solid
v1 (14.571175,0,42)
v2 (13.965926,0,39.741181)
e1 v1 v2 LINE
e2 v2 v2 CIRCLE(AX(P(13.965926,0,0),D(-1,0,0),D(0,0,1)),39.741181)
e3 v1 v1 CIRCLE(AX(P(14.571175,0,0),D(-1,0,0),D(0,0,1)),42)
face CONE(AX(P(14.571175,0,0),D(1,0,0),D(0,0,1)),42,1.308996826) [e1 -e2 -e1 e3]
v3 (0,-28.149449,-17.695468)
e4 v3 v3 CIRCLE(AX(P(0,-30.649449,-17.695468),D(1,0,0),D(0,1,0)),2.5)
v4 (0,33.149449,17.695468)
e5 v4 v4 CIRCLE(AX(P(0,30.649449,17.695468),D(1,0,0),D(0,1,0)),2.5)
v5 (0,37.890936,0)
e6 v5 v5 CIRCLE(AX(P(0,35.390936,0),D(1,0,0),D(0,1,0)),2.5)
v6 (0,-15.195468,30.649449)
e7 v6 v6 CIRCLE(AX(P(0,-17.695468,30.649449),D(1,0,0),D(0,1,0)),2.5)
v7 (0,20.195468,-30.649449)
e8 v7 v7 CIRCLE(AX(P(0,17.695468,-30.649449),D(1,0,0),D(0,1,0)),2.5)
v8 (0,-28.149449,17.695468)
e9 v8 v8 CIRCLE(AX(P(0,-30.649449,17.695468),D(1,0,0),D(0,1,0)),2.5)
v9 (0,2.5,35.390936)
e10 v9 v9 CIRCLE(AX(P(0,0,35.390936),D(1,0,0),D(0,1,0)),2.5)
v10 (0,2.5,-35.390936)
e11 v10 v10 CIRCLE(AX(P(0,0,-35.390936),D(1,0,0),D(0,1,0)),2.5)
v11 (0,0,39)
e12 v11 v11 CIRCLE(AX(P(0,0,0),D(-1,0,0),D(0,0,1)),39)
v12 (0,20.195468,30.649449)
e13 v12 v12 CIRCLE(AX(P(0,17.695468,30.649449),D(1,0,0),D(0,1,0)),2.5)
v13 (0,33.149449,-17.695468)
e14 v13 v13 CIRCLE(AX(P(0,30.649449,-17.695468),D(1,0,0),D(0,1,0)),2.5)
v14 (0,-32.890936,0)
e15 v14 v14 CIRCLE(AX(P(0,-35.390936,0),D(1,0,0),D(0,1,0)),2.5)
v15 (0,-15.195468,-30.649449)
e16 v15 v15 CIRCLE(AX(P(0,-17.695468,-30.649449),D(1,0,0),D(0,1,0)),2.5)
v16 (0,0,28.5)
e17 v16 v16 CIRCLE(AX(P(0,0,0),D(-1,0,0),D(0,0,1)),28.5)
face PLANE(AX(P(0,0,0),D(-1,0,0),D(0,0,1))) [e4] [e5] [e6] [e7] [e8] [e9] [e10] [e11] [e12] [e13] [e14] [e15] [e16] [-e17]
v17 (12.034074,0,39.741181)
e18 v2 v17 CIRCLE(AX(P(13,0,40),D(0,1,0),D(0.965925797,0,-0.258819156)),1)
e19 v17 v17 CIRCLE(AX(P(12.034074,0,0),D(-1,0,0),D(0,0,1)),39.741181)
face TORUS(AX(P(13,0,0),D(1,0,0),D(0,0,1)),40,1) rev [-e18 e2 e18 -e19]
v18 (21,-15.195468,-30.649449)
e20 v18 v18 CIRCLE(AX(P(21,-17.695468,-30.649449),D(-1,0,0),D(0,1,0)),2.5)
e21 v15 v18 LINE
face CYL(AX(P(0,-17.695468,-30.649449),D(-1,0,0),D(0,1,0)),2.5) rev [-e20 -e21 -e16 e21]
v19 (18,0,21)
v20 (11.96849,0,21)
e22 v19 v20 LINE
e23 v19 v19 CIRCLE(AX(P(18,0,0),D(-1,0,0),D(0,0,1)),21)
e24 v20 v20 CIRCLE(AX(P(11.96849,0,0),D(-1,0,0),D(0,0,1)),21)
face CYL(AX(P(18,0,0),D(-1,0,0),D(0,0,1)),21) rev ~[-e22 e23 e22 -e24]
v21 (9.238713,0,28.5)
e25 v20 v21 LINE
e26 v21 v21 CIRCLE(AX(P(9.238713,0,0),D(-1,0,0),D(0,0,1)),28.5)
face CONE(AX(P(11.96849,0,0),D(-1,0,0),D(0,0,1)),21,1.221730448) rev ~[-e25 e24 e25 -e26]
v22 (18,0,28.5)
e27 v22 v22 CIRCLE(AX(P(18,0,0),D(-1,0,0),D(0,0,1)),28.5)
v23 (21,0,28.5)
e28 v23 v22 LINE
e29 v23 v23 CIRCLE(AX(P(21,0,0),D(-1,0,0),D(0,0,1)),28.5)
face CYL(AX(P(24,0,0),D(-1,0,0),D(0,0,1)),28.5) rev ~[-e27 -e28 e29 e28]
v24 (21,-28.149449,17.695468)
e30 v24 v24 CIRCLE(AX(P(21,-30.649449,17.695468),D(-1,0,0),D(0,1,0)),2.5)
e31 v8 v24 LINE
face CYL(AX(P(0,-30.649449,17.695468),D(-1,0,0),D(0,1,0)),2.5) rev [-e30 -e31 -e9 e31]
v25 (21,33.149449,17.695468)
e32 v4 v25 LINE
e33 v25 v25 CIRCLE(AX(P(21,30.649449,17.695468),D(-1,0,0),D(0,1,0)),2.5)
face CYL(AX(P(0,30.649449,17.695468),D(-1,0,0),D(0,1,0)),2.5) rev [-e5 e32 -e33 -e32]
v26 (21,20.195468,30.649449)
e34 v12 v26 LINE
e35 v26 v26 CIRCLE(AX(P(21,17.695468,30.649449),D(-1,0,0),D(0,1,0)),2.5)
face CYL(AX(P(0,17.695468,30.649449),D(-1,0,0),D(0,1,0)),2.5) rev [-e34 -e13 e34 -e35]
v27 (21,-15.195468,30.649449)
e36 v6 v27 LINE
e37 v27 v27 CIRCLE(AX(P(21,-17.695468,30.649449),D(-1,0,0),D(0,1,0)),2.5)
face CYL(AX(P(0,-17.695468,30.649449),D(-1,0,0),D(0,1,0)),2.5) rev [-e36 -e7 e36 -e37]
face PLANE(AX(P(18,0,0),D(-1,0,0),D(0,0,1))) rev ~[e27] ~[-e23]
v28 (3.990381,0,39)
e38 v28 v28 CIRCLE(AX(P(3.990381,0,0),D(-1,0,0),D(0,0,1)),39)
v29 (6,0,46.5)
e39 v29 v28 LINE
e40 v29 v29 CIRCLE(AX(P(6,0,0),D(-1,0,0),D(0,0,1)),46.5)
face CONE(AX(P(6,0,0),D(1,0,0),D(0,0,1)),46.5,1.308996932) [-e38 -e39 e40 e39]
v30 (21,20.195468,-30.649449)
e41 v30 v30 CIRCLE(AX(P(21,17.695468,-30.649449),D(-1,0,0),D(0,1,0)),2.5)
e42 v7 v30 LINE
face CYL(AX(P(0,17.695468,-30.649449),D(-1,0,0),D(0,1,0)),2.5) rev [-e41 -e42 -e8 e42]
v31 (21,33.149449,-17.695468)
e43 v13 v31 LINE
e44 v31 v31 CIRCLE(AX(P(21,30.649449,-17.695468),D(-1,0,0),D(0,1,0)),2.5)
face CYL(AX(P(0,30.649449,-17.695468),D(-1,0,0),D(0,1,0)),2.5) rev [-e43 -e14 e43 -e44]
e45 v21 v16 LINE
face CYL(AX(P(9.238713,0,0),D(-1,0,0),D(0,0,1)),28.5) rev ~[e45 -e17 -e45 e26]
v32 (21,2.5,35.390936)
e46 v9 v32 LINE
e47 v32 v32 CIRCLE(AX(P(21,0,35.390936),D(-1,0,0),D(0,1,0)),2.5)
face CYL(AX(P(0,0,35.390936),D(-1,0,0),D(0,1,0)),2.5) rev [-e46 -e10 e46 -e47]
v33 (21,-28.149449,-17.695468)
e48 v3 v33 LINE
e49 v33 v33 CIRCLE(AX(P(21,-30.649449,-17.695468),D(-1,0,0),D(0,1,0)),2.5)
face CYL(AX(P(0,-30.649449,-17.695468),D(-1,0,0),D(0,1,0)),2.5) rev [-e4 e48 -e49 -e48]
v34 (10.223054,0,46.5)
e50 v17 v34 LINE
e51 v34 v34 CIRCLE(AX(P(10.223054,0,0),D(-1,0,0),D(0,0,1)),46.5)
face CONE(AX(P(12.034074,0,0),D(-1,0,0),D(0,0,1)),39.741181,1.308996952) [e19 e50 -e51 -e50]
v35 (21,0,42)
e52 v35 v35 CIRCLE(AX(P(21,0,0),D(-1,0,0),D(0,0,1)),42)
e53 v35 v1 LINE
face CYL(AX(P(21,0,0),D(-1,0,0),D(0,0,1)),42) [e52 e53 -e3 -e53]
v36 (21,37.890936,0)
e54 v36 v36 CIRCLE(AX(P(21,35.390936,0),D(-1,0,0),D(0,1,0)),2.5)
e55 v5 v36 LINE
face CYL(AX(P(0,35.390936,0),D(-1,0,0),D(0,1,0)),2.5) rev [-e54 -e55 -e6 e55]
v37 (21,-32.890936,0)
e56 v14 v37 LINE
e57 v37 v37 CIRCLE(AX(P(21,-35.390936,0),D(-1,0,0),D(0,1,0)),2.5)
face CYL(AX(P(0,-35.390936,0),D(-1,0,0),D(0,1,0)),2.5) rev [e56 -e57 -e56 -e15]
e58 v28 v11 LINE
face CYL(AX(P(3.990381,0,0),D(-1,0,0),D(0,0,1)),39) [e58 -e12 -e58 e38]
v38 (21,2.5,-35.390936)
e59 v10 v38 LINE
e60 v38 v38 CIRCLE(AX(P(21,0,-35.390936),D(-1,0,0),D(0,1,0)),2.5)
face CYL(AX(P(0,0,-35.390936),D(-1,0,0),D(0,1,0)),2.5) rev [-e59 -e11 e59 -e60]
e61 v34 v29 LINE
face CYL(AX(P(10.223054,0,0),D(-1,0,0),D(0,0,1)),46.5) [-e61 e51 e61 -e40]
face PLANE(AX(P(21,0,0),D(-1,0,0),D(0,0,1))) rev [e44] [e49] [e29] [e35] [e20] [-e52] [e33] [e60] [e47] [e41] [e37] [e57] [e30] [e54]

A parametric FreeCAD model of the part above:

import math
import FreeCAD as App
import Part
import Sketcher
from FreeCAD import Vector
Q = App.Units.Quantity


def add_polygon(sketch, points):
    """Adds a closed chain of lines whose ends are joined by coincident constraints."""
    first, n = sketch.GeometryCount, len(points)
    for a, b in zip(points, points[1:] + points[:1]):
        sketch.addGeometry(Part.LineSegment(App.Vector(*a, 0), App.Vector(*b, 0)), False)
    for i in range(n):
        sketch.addConstraint(Sketcher.Constraint("Coincident", first + i, 2, first + (i + 1) % n, 1))

doc = App.newDocument("Part")
body = doc.addObject("PartDesign::Body", "Body")

# Sketch on XZ plane
sketch1 = doc.addObject("Sketcher::SketchObject", "Sketch")
body.addObject(sketch1)
sketch1.AttachmentSupport = (doc.XZ_Plane, [""])
sketch1.MapMode = "FlatFace"
sketch1.addGeometry([
    Part.LineSegment(Vector(0, 39, 0), Vector(0, 0, 0)),  # 0
    Part.LineSegment(Vector(0, 0, 0), Vector(21, 0, 0)),  # 1
    Part.LineSegment(Vector(21, 0, 0), Vector(21, 42, 0)),  # 2
    Part.LineSegment(Vector(21, 42, 0), Vector(14.571175, 42, 0)),  # 3
    Part.LineSegment(Vector(14.571175, 42, 0), Vector(13.965926, 39.741181, 0)),  # 4
    Part.ArcOfCircle(Part.Circle(Vector(13, 40, 0), Vector(0, 0, 1), 1), math.radians(-164.999993), math.radians(-15.000007)),  # 5
    Part.LineSegment(Vector(12.034074, 39.741181, 0), Vector(10.223054, 46.5, 0)),  # 6
    Part.LineSegment(Vector(10.223054, 46.5, 0), Vector(6, 46.5, 0)),  # 7
    Part.LineSegment(Vector(6, 46.5, 0), Vector(3.990381, 39, 0)),  # 8
    Part.LineSegment(Vector(3.990381, 39, 0), Vector(0, 39, 0)),  # 9
], False)
sketch1.addConstraint([
    Sketcher.Constraint("Coincident", 0, 2, 1, 1),
    Sketcher.Constraint("Coincident", 1, 2, 2, 1),
    Sketcher.Constraint("Coincident", 2, 2, 3, 1),
    Sketcher.Constraint("Coincident", 3, 2, 4, 1),
    Sketcher.Constraint("Tangent", 4, 2, 5, 2),
    Sketcher.Constraint("Tangent", 5, 1, 6, 1),
    Sketcher.Constraint("Coincident", 6, 2, 7, 1),
    Sketcher.Constraint("Coincident", 7, 2, 8, 1),
    Sketcher.Constraint("Coincident", 8, 2, 9, 1),
    Sketcher.Constraint("Coincident", 9, 2, 0, 1),
    Sketcher.Constraint("Vertical", 0),
    Sketcher.Constraint("Horizontal", 1),
    Sketcher.Constraint("Vertical", 2),
    Sketcher.Constraint("Horizontal", 3),
    Sketcher.Constraint("Horizontal", 7),
    Sketcher.Constraint("Horizontal", 9),
    Sketcher.Constraint("Coincident", 0, 2, -1, 1),
    Sketcher.Constraint("Parallel", 4, 8),
    Sketcher.Constraint("Horizontal", 4, 2, 5, 1),
    Sketcher.Constraint("Radius", 5, Q("1 mm")),
    Sketcher.Constraint("DistanceX", 1, 1, 1, 2, Q("21 mm")),
    Sketcher.Constraint("DistanceY", 0, 2, 0, 1, Q("39 mm")),
    Sketcher.Constraint("DistanceY", 2, 1, 2, 2, Q("42 mm")),
    Sketcher.Constraint("Angle", 4, Q("-105.000006 deg")),
    Sketcher.Constraint("DistanceX", -1, 1, 5, 3, Q("13 mm")),
    Sketcher.Constraint("DistanceY", -1, 1, 5, 3, Q("40 mm")),
    Sketcher.Constraint("DistanceX", -1, 1, 7, 2, Q("6 mm")),
    Sketcher.Constraint("DistanceY", -1, 1, 6, 2, Q("46.5 mm")),
])
revolution = doc.addObject("PartDesign::Revolution", "Revolution")
body.addObject(revolution)
revolution.Profile = sketch1
revolution.ReferenceAxis = (sketch1, ["H_Axis"])
revolution.Angle = 360

# Sketch on XZ plane
sketch2 = doc.addObject("Sketcher::SketchObject", "Sketch001")
body.addObject(sketch2)
sketch2.AttachmentSupport = (doc.XZ_Plane, [""])
sketch2.MapMode = "FlatFace"
add_polygon(sketch2, [(0, 28.5), (0, 0), (24, 0), (24, 28.5), (18, 28.5), (18, 21), (11.96849, 21), (9.238713, 28.5)])  # lines 0-7
sketch2.addConstraint([
    Sketcher.Constraint("Vertical", 0),
    Sketcher.Constraint("Horizontal", 1),
    Sketcher.Constraint("Vertical", 2),
    Sketcher.Constraint("Horizontal", 3),
    Sketcher.Constraint("Vertical", 4),
    Sketcher.Constraint("Horizontal", 5),
    Sketcher.Constraint("Horizontal", 7),
    Sketcher.Constraint("Coincident", 0, 2, -1, 1),
    Sketcher.Constraint("Horizontal", 3, 2, 6, 2),
    Sketcher.Constraint("DistanceX", 1, 1, 1, 2, Q("24 mm")),
    Sketcher.Constraint("DistanceX", 3, 2, 3, 1, Q("6 mm")),
    Sketcher.Constraint("Angle", 6, Q("110.000002 deg")),
    Sketcher.Constraint("DistanceY", 0, 2, 0, 1, Q("28.5 mm")),
    Sketcher.Constraint("DistanceY", 4, 2, 4, 1, Q("7.5 mm")),
    Sketcher.Constraint("DistanceX", 5, 2, 5, 1, Q("6.03151 mm")),
])
groove = doc.addObject("PartDesign::Groove", "Groove")
body.addObject(groove)
groove.Profile = sketch2
groove.ReferenceAxis = (sketch2, ["H_Axis"])
groove.Angle = 360

# Sketch on YZ plane
sketch3 = doc.addObject("Sketcher::SketchObject", "Sketch002")
body.addObject(sketch3)
sketch3.AttachmentSupport = (doc.YZ_Plane, [""])
sketch3.MapMode = "FlatFace"
sketch3.addGeometry([
    Part.Circle(Vector(-35.390936, 0, 0), Vector(0, 0, 1), 2.5),  # 0
    Part.Circle(Vector(-30.649449, -17.695468, 0), Vector(0, 0, 1), 2.5),  # 1
    Part.Circle(Vector(-17.695468, -30.649449, 0), Vector(0, 0, 1), 2.5),  # 2
    Part.Circle(Vector(0, -35.390936, 0), Vector(0, 0, 1), 2.5),  # 3
    Part.Circle(Vector(17.695468, -30.649449, 0), Vector(0, 0, 1), 2.5),  # 4
    Part.Circle(Vector(30.649449, -17.695468, 0), Vector(0, 0, 1), 2.5),  # 5
    Part.Circle(Vector(35.390936, 0, 0), Vector(0, 0, 1), 2.5),  # 6
    Part.Circle(Vector(30.649449, 17.695468, 0), Vector(0, 0, 1), 2.5),  # 7
    Part.Circle(Vector(17.695468, 30.649449, 0), Vector(0, 0, 1), 2.5),  # 8
    Part.Circle(Vector(0, 35.390936, 0), Vector(0, 0, 1), 2.5),  # 9
    Part.Circle(Vector(-17.695468, 30.649449, 0), Vector(0, 0, 1), 2.5),  # 10
    Part.Circle(Vector(-30.649449, 17.695468, 0), Vector(0, 0, 1), 2.5),  # 11
], False)
sketch3.addConstraint([
    Sketcher.Constraint("Equal", 0, 1),
    Sketcher.Constraint("Equal", 1, 2),
    Sketcher.Constraint("Equal", 2, 3),
    Sketcher.Constraint("Equal", 3, 4),
    Sketcher.Constraint("Equal", 4, 5),
    Sketcher.Constraint("Equal", 5, 6),
    Sketcher.Constraint("Equal", 6, 7),
    Sketcher.Constraint("Equal", 7, 8),
    Sketcher.Constraint("Equal", 8, 9),
    Sketcher.Constraint("Equal", 9, 10),
    Sketcher.Constraint("Equal", 10, 11),
    Sketcher.Constraint("Symmetric", 0, 3, 6, 3, -1, 1),
    Sketcher.Constraint("Symmetric", 1, 3, 7, 3, -1, 1),
    Sketcher.Constraint("Symmetric", 2, 3, 8, 3, -1, 1),
    Sketcher.Constraint("Symmetric", 3, 3, 9, 3, -1, 1),
    Sketcher.Constraint("Symmetric", 4, 3, 10, 3, -1, 1),
    Sketcher.Constraint("Symmetric", 5, 3, 11, 3, -1, 1),
    Sketcher.Constraint("Symmetric", 2, 3, 4, 3, -2),
    Sketcher.Constraint("Symmetric", 1, 3, 5, 3, -2),
    Sketcher.Constraint("PointOnObject", 0, 3, -1),
    Sketcher.Constraint("PointOnObject", 3, 3, -2),
    Sketcher.Constraint("Diameter", 0, Q("5 mm")),
    Sketcher.Constraint("DistanceX", 1, 3, -1, 1, Q("30.649449 mm")),
    Sketcher.Constraint("DistanceY", 1, 3, -1, 1, Q("17.695468 mm")),
    Sketcher.Constraint("DistanceX", 2, 3, -1, 1, Q("17.695468 mm")),
    Sketcher.Constraint("DistanceY", 2, 3, -1, 1, Q("30.649449 mm")),
    Sketcher.Constraint("DistanceX", 0, 3, 2, 3, Q("17.695468 mm")),
    Sketcher.Constraint("DistanceY", 3, 3, 1, 3, Q("17.695468 mm")),
])
pocket1 = doc.addObject("PartDesign::Pocket", "Pocket")
body.addObject(pocket1)
pocket1.Profile = sketch3
pocket1.Length = 25
pocket1.Reversed = True

doc.recompute()
